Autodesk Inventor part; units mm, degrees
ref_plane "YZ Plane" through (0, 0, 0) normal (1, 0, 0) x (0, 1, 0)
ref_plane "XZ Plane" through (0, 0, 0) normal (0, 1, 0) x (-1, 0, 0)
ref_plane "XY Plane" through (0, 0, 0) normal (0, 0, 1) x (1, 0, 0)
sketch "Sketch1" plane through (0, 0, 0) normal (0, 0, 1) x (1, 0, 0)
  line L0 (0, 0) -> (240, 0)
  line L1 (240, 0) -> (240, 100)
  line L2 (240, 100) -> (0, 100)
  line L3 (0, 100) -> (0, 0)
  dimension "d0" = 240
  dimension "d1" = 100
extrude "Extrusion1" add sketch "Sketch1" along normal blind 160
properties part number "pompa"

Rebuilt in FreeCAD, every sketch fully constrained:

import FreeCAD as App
import Part
import Sketcher

V = App.Vector

doc = App.newDocument("Part")
params = doc.addObject("Spreadsheet::Sheet", "Params")
for row, (alias, value) in enumerate([
    ("sketch1_width", "240 mm"),
    ("sketch1_height", "100 mm"),
    ("pad1_length", "160 mm"),
], start=1):
    params.set(f"A{row}", alias)
    params.set(f"B{row}", "=" + value)
    params.setAlias(f"B{row}", alias)

body = doc.addObject("PartDesign::Body", "Body")

# Sketch on XY plane
sketch1 = body.newObject("Sketcher::SketchObject", "Sketch")
sketch1.AttachmentSupport = (doc.getObject("XY_Plane"), [""])
sketch1.MapMode = "FlatFace"
sketch1.addGeometry([
    Part.LineSegment(V(0, 100, 0), V(0, 0, 0)),
    Part.LineSegment(V(0, 0, 0), V(240, 0, 0)),
    Part.LineSegment(V(240, 0, 0), V(240, 100, 0)),
    Part.LineSegment(V(240, 100, 0), V(0, 100, 0)),
], False)
sketch1.addConstraint([
    Sketcher.Constraint("Coincident", 0, 2, 1, 1),
    Sketcher.Constraint("Coincident", 1, 2, 2, 1),
    Sketcher.Constraint("Coincident", 2, 2, 3, 1),
    Sketcher.Constraint("Coincident", 3, 2, 0, 1),
    Sketcher.Constraint("Vertical", 0),
    Sketcher.Constraint("Horizontal", 1),
    Sketcher.Constraint("Vertical", 2),
    Sketcher.Constraint("Horizontal", 3),
    Sketcher.Constraint("Coincident", 0, 2, -1, 1),
    Sketcher.Constraint("DistanceX", 1, 1, 1, 2, 240.0),
    Sketcher.Constraint("DistanceY", 0, 2, 0, 1, 100.0),
])
sketch1.setExpression("Constraints[9]", "Params.sketch1_width")
sketch1.setExpression("Constraints[10]", "Params.sketch1_height")
pad1 = body.newObject("PartDesign::Pad", "Pad")
pad1.Profile = sketch1
pad1.setExpression("Length", "Params.pad1_length")

doc.recompute()
